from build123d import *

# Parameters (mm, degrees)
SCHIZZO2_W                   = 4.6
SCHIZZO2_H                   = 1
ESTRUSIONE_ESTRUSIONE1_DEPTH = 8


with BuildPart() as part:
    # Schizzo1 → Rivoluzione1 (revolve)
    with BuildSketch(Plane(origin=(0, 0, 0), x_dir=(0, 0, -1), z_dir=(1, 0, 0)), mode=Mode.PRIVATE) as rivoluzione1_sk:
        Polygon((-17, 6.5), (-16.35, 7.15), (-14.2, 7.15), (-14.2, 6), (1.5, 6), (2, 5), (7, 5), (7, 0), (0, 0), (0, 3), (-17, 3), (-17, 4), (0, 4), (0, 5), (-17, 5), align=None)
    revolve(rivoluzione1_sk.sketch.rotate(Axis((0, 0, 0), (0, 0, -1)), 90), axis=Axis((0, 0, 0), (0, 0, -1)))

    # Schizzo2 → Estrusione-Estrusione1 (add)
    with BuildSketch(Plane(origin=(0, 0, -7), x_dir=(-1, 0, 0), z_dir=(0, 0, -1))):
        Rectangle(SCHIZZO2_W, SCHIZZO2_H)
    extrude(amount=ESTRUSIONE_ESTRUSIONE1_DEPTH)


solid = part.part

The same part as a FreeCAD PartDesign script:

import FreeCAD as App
import Part
import Sketcher

V = App.Vector
Q = App.Units.Quantity


def add_polygon(sketch, points):
    """Adds a closed chain of lines whose ends are joined by coincident constraints."""
    first, n = sketch.GeometryCount, len(points)
    for a, b in zip(points, points[1:] + points[:1]):
        sketch.addGeometry(Part.LineSegment(App.Vector(*a, 0), App.Vector(*b, 0)), False)
    for i in range(n):
        sketch.addConstraint(Sketcher.Constraint("Coincident", first + i, 2, first + (i + 1) % n, 1))

doc = App.newDocument("Part")
params = doc.addObject("Spreadsheet::Sheet", "Params")
for row, (alias, value) in enumerate([
    ("sketch1_width", "1 mm"),
    ("sketch1_width2", "3 mm"),
    ("sketch1_height", "17 mm"),
    ("sketch1_height2", "7 mm"),
    ("sketch1_width3", "1.5 mm"),
    ("revolution_angle", "360 deg"),
    ("sketch2_height", "1 mm"),
    ("sketch2_width", "4.6 mm"),
    ("pad1_length", "8 mm"),
], start=1):
    params.set(f"A{row}", alias)
    params.set(f"B{row}", "=" + value)
    params.setAlias(f"B{row}", alias)

body = doc.addObject("PartDesign::Body", "Body")

# Sketch on YZ plane
sketch1 = body.newObject("Sketcher::SketchObject", "Sketch")
sketch1.AttachmentSupport = (doc.getObject("YZ_Plane"), [""])
sketch1.MapMode = "FlatFace"
add_polygon(sketch1, [(7.2, 16.4), (6.5, 17), (5, 17), (5, 0), (4, 0), (4, 17), (3, 17), (3, 0), (0, 0), (0, -7), (5, -7), (5, -2), (6, -1.5), (6, 14.2), (7.2, 14.2)])  # lines 0-14
sketch1.addConstraint(Sketcher.Constraint("Horizontal", 1))
sketch1.addConstraint(Sketcher.Constraint("Vertical", 2))
sketch1.addConstraint(Sketcher.Constraint("Horizontal", 3))
sketch1.addConstraint(Sketcher.Constraint("Vertical", 4))
sketch1.addConstraint(Sketcher.Constraint("Horizontal", 5))
sketch1.addConstraint(Sketcher.Constraint("Vertical", 6))
sketch1.addConstraint(Sketcher.Constraint("Horizontal", 7))
sketch1.addConstraint(Sketcher.Constraint("Vertical", 8))
sketch1.addConstraint(Sketcher.Constraint("Horizontal", 9))
sketch1.addConstraint(Sketcher.Constraint("Vertical", 10))
sketch1.addConstraint(Sketcher.Constraint("Vertical", 12))
sketch1.addConstraint(Sketcher.Constraint("Horizontal", 13))
sketch1.addConstraint(Sketcher.Constraint("Vertical", 14))
sketch1.addConstraint(Sketcher.Constraint("Coincident", 7, 2, -1, 1))
sketch1.addConstraint(Sketcher.Constraint("PointOnObject", 2, 2, -1))
sketch1.addConstraint(Sketcher.Constraint("Horizontal", 1, 2, 4, 2))
sketch1.addConstraint(Sketcher.Constraint("Vertical", 2, 2, 9, 2))
sketch1.addConstraint(Sketcher.Constraint("Equal", 3, 5))
sketch1.addConstraint(Sketcher.Constraint("Equal", 9, 10))
sketch1.addConstraint(Sketcher.Constraint("DistanceX", 3, 2, 3, 1, Q("1 mm")))
sketch1.addConstraint(Sketcher.Constraint("DistanceX", 7, 2, 7, 1, Q("3 mm")))
sketch1.addConstraint(Sketcher.Constraint("DistanceY", 2, 2, 2, 1, Q("17 mm")))
sketch1.addConstraint(Sketcher.Constraint("DistanceY", 8, 2, 8, 1, Q("7 mm")))
sketch1.addConstraint(Sketcher.Constraint("Angle", 0, Q("135 deg")))
sketch1.addConstraint(Sketcher.Constraint("DistanceX", 1, 2, 1, 1, Q("1.5 mm")))
sketch1.addConstraint(Sketcher.Constraint("DistanceY", 12, 1, 12, 2, Q("15.7 mm")))
sketch1.addConstraint(Sketcher.Constraint("DistanceX", -1, 1, 11, 2, Q("6 mm")))
sketch1.addConstraint(Sketcher.Constraint("DistanceX", 13, 1, 13, 2, Q("1.15 mm")))
sketch1.addConstraint(Sketcher.Constraint("DistanceY", 14, 1, 14, 2, Q("2.15 mm")))
sketch1.setExpression("Constraints[34]", "Params.sketch1_width")
sketch1.setExpression("Constraints[35]", "Params.sketch1_width2")
sketch1.setExpression("Constraints[36]", "Params.sketch1_height")
sketch1.setExpression("Constraints[37]", "Params.sketch1_height2")
sketch1.setExpression("Constraints[39]", "Params.sketch1_width3")
revolution = body.newObject("PartDesign::Revolution", "Revolution")
revolution.Profile = sketch1
revolution.ReferenceAxis = (sketch1, ["V_Axis"])
revolution.setExpression("Angle", "Params.revolution_angle")

# Sketch on XY plane
sketch2 = body.newObject("Sketcher::SketchObject", "Sketch001")
sketch2.AttachmentSupport = (doc.getObject("XY_Plane"), [""])
sketch2.MapMode = "FlatFace"
sketch2.AttachmentOffset = App.Placement(V(0, 0, -7), App.Rotation())
add_polygon(sketch2, [(2.3, 0.5), (2.3, -0.5), (-2.3, -0.5), (-2.3, 0.5)])  # lines 0-3
sketch2.addConstraint(Sketcher.Constraint("Vertical", 0))
sketch2.addConstraint(Sketcher.Constraint("Horizontal", 1))
sketch2.addConstraint(Sketcher.Constraint("Vertical", 2))
sketch2.addConstraint(Sketcher.Constraint("Horizontal", 3))
sketch2.addConstraint(Sketcher.Constraint("Symmetric", 0, 2, 2, 2, -1, 1))
sketch2.addConstraint(Sketcher.Constraint("DistanceY", 0, 2, 0, 1, Q("1 mm")))
sketch2.addConstraint(Sketcher.Constraint("DistanceX", 1, 2, 1, 1, Q("4.6 mm")))
sketch2.setExpression("Constraints[9]", "Params.sketch2_height")
sketch2.setExpression("Constraints[10]", "Params.sketch2_width")
pad1 = body.newObject("PartDesign::Pad", "Pad")
pad1.Profile = sketch2
pad1.setExpression("Length", "Params.pad1_length")
pad1.Reversed = True

doc.recompute()
